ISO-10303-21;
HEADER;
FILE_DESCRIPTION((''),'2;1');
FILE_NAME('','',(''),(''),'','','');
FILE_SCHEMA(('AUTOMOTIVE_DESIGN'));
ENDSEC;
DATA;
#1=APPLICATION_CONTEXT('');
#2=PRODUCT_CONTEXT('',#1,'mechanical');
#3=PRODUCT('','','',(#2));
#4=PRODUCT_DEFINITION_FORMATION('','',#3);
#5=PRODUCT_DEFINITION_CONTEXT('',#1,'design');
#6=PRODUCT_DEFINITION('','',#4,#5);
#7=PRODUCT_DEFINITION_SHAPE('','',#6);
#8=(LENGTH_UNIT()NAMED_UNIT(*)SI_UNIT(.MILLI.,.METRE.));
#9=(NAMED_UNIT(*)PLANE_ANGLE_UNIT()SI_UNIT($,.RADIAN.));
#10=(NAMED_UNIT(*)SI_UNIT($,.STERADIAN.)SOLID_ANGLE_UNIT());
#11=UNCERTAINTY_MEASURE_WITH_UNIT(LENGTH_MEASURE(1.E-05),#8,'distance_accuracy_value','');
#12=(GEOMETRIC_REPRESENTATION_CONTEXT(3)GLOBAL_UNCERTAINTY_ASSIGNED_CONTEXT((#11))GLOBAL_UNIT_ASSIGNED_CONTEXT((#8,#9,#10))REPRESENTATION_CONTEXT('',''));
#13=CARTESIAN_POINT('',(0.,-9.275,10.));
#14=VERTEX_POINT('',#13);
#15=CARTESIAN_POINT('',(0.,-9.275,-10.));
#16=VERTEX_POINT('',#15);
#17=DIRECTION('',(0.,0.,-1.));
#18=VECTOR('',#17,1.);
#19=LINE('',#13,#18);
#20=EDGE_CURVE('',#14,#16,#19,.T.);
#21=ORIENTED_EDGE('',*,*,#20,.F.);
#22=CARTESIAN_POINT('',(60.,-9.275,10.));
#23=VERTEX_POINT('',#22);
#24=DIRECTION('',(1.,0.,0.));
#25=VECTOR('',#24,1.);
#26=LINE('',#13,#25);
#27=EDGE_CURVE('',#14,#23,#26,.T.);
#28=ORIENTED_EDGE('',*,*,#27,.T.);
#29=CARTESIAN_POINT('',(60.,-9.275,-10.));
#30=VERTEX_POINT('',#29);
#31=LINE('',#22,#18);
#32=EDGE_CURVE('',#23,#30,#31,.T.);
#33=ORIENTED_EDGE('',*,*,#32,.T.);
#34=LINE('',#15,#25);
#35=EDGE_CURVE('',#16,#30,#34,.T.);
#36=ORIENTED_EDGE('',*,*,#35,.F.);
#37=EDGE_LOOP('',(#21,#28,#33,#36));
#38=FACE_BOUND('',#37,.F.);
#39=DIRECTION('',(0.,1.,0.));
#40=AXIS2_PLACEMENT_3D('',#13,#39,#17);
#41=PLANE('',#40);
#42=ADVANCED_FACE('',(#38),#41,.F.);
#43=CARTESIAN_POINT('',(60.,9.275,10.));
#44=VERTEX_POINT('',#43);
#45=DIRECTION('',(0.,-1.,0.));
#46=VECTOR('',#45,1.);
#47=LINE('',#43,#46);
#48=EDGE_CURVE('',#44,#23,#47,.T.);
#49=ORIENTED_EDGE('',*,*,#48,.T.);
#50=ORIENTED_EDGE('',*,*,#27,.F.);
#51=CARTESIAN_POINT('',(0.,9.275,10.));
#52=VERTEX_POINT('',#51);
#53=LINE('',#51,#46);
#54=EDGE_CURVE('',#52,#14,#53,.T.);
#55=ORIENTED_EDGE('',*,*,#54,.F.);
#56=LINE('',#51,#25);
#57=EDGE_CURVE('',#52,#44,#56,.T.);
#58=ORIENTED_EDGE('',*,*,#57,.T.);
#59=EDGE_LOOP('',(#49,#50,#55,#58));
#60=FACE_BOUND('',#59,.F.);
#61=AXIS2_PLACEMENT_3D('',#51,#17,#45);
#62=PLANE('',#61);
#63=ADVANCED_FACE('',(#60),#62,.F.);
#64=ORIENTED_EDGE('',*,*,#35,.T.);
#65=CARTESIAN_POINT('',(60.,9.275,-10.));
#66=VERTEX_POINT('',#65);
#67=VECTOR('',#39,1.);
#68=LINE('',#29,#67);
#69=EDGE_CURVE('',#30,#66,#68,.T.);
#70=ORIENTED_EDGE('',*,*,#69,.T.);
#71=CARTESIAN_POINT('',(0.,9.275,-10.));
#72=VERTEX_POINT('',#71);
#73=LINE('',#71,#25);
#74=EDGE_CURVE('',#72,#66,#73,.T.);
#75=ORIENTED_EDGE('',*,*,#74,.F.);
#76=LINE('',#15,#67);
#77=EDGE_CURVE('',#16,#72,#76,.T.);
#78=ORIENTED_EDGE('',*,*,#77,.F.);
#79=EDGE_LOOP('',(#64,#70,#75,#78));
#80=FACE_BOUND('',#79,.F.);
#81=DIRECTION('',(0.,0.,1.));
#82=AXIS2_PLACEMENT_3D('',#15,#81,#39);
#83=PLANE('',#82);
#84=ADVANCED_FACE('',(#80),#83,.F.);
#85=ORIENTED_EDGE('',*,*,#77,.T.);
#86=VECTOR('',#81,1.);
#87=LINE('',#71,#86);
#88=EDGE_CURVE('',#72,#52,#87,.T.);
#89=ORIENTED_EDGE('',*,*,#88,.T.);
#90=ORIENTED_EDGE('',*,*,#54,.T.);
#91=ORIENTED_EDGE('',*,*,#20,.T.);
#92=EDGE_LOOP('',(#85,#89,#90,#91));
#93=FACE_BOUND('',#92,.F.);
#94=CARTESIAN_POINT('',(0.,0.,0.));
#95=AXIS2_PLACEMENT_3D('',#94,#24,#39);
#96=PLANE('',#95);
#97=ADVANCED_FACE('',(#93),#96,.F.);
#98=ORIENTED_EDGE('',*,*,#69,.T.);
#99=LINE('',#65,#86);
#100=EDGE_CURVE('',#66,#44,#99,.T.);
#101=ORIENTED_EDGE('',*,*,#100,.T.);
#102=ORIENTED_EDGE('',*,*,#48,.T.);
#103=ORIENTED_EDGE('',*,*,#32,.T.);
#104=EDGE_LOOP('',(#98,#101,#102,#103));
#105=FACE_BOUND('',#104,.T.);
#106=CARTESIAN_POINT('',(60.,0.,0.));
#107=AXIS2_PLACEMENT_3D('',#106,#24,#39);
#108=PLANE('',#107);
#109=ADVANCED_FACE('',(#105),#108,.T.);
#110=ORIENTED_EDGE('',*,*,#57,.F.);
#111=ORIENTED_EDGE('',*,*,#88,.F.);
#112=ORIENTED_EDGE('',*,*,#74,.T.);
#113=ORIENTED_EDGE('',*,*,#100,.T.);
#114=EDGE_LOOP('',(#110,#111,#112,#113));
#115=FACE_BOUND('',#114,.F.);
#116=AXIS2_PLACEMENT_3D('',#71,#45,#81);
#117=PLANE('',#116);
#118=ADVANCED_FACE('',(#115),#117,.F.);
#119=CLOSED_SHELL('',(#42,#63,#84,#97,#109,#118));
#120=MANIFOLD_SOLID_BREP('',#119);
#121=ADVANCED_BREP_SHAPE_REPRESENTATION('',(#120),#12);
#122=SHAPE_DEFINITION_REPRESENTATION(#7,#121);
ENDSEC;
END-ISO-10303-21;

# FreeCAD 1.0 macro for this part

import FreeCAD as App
import Part
import Sketcher

V = App.Vector
Q = App.Units.Quantity

doc = App.newDocument("Part")
body = doc.addObject("PartDesign::Body", "Body")

sketch1 = body.newObject("Sketcher::SketchObject", "Sketch")
sketch1.AttachmentSupport = (doc.getObject("YZ_Plane"), [""])
sketch1.MapMode = "FlatFace"
sketch1.addGeometry([
    Part.LineSegment(V(-9.275, 10, 0), V(-9.275, -10, 0)),
    Part.LineSegment(V(-9.275, -10, 0), V(9.275, -10, 0)),
    Part.LineSegment(V(9.275, -10, 0), V(9.275, 10, 0)),
    Part.LineSegment(V(9.275, 10, 0), V(-9.275, 10, 0)),
], False)
sketch1.addConstraint([
    Sketcher.Constraint("Coincident", 0, 2, 1, 1),
    Sketcher.Constraint("Coincident", 1, 2, 2, 1),
    Sketcher.Constraint("Coincident", 2, 2, 3, 1),
    Sketcher.Constraint("Coincident", 3, 2, 0, 1),
    Sketcher.Constraint("Vertical", 0),
    Sketcher.Constraint("Horizontal", 1),
    Sketcher.Constraint("Vertical", 2),
    Sketcher.Constraint("Horizontal", 3),
    Sketcher.Constraint("Symmetric", 0, 2, 2, 2, -1, 1),
    Sketcher.Constraint("DistanceY", 0, 2, 0, 1, Q("20 mm")),
    Sketcher.Constraint("DistanceX", 1, 1, 1, 2, Q("18.55 mm")),
])
pad1 = body.newObject("PartDesign::Pad", "Pad")
pad1.Profile = sketch1
pad1.Length = 60

doc.recompute()
